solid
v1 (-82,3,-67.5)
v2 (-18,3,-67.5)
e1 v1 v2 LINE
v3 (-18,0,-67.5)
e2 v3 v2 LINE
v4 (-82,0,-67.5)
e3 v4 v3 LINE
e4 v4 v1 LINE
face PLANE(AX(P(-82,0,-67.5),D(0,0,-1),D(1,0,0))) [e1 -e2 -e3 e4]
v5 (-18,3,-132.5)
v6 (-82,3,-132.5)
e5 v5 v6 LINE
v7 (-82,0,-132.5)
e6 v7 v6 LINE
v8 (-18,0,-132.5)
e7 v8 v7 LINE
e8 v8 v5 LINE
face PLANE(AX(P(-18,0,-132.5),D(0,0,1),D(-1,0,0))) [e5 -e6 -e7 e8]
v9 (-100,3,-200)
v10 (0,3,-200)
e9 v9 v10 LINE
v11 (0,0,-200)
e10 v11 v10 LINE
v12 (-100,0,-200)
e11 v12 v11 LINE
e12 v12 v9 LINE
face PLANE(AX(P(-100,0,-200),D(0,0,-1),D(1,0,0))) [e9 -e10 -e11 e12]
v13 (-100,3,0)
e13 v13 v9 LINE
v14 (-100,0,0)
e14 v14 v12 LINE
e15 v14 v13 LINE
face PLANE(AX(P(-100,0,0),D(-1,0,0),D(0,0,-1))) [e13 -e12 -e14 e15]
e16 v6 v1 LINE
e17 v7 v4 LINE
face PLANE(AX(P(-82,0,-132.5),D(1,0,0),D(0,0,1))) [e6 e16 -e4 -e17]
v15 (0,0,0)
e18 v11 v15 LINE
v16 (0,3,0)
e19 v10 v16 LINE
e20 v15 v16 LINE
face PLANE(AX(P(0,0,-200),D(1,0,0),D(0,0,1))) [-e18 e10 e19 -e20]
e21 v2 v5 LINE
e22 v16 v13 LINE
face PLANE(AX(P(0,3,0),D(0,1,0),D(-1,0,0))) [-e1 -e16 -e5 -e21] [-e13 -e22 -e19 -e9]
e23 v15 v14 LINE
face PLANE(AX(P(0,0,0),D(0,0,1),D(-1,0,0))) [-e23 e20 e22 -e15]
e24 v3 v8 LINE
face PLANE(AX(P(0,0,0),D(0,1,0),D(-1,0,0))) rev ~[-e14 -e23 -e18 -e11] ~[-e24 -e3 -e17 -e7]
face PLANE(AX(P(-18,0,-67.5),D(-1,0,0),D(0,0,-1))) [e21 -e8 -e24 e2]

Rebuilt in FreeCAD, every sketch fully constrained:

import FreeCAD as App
import Part
import Sketcher
Q = App.Units.Quantity

doc = App.newDocument("Part")
body = doc.addObject("PartDesign::Body", "Body")

# Sketch on XZ plane
sketch1 = body.newObject("Sketcher::SketchObject", "Sketch")
sketch1.AttachmentSupport = (doc.getObject("XZ_Plane"), [""])
sketch1.MapMode = "FlatFace"
sketch1.addGeometry([
    Part.LineSegment(App.Vector(-100, 0, 0), App.Vector(0, 0, 0)),  # 0
    Part.LineSegment(App.Vector(0, 0, 0), App.Vector(0, -200, 0)),  # 1
    Part.LineSegment(App.Vector(0, -200, 0), App.Vector(-100, -200, 0)),  # 2
    Part.LineSegment(App.Vector(-100, -200, 0), App.Vector(-100, 0, 0)),  # 3
    Part.LineSegment(App.Vector(-18, -67.5, 0), App.Vector(-82, -67.5, 0)),  # 4
    Part.LineSegment(App.Vector(-82, -67.5, 0), App.Vector(-82, -132.5, 0)),  # 5
    Part.LineSegment(App.Vector(-82, -132.5, 0), App.Vector(-18, -132.5, 0)),  # 6
    Part.LineSegment(App.Vector(-18, -132.5, 0), App.Vector(-18, -67.5, 0)),  # 7
], False)
sketch1.addConstraint([
    Sketcher.Constraint("Coincident", 0, 2, 1, 1),
    Sketcher.Constraint("Coincident", 1, 2, 2, 1),
    Sketcher.Constraint("Coincident", 2, 2, 3, 1),
    Sketcher.Constraint("Coincident", 3, 2, 0, 1),
    Sketcher.Constraint("Coincident", 4, 2, 5, 1),
    Sketcher.Constraint("Coincident", 5, 2, 6, 1),
    Sketcher.Constraint("Coincident", 6, 2, 7, 1),
    Sketcher.Constraint("Coincident", 7, 2, 4, 1),
    Sketcher.Constraint("Horizontal", 0),
    Sketcher.Constraint("Vertical", 1),
    Sketcher.Constraint("Horizontal", 2),
    Sketcher.Constraint("Vertical", 3),
    Sketcher.Constraint("Horizontal", 4),
    Sketcher.Constraint("Vertical", 5),
    Sketcher.Constraint("Horizontal", 6),
    Sketcher.Constraint("Vertical", 7),
    Sketcher.Constraint("Coincident", 0, 2, -1, 1),
    Sketcher.Constraint("DistanceX", 0, 1, 0, 2, Q("100 mm")),
    Sketcher.Constraint("DistanceX", 4, 2, 4, 1, Q("64 mm")),
    Sketcher.Constraint("DistanceY", 1, 2, 1, 1, Q("200 mm")),
    Sketcher.Constraint("DistanceY", 5, 2, 5, 1, Q("65 mm")),
    Sketcher.Constraint("DistanceX", 6, 2, -1, 1, Q("18 mm")),
    Sketcher.Constraint("DistanceY", 4, 2, -1, 1, Q("67.5 mm")),
])
pad1 = body.newObject("PartDesign::Pad", "Pad")
pad1.Profile = sketch1
pad1.Length = 3
pad1.Reversed = True

doc.recompute()
